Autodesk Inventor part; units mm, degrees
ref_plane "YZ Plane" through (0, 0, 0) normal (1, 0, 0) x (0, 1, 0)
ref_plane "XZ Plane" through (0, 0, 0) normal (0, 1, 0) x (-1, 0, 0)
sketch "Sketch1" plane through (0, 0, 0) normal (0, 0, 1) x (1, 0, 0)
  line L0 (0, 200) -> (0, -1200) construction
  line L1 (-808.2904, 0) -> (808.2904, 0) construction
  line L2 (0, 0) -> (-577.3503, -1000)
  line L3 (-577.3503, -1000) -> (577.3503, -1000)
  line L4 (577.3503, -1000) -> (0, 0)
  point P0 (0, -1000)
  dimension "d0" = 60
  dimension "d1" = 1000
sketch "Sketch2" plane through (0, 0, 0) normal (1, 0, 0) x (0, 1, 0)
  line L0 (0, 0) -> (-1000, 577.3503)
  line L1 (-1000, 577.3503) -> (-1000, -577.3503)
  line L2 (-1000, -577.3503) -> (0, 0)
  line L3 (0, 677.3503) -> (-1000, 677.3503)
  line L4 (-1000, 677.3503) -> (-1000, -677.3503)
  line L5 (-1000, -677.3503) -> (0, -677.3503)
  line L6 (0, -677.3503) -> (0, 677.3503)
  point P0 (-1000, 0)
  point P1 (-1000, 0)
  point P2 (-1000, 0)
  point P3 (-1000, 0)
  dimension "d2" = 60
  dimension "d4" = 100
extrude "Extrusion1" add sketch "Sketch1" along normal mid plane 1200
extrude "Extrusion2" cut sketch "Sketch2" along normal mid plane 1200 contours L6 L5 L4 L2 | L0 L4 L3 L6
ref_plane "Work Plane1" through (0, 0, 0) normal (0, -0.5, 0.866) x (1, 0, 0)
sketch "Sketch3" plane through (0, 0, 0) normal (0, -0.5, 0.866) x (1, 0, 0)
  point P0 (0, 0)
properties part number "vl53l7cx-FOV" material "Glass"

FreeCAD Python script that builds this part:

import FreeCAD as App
import Part
import Sketcher

V = App.Vector
Q = App.Units.Quantity

doc = App.newDocument("Part")
params = doc.addObject("Spreadsheet::Sheet", "Params")
for row, (alias, value) in enumerate([
    ("pad1_length", "1200 mm"),
    ("sketch2_height", "100 mm"),
    ("sketch2_width", "1000 mm"),
    ("pocket1_length", "1200 mm"),
], start=1):
    params.set(f"A{row}", alias)
    params.set(f"B{row}", "=" + value)
    params.setAlias(f"B{row}", alias)

body = doc.addObject("PartDesign::Body", "Body")

# Sketch on XY plane
sketch1 = body.newObject("Sketcher::SketchObject", "Sketch")
sketch1.AttachmentSupport = (doc.getObject("XY_Plane"), [""])
sketch1.MapMode = "FlatFace"
sketch1.addGeometry(Part.LineSegment(V(577, -1000, 0), V(0, 0, 0)), False)
sketch1.addGeometry(Part.LineSegment(V(0, 0, 0), V(-577, -1000, 0)), False)
sketch1.addGeometry(Part.LineSegment(V(-577, -1000, 0), V(577, -1000, 0)), False)
sketch1.addConstraint(Sketcher.Constraint("Coincident", 0, 2, 1, 1))
sketch1.addConstraint(Sketcher.Constraint("Coincident", 1, 2, 2, 1))
sketch1.addConstraint(Sketcher.Constraint("Coincident", 2, 2, 0, 1))
sketch1.addConstraint(Sketcher.Constraint("Horizontal", 2))
sketch1.addConstraint(Sketcher.Constraint("Coincident", 0, 2, -1, 1))
sketch1.addConstraint(Sketcher.Constraint("Equal", 0, 1))
sketch1.addConstraint(Sketcher.Constraint("DistanceY", 1, 2, -1, 1, Q("1000 mm")))
sketch1.addConstraint(Sketcher.Constraint("Angle", 0, Q("120 deg")))
pad1 = body.newObject("PartDesign::Pad", "Pad")
pad1.Profile = sketch1
pad1.setExpression("Length", "Params.pad1_length")
pad1.Midplane = True

# Sketch on YZ plane
sketch2 = body.newObject("Sketcher::SketchObject", "Sketch001")
sketch2.AttachmentSupport = (doc.getObject("YZ_Plane"), [""])
sketch2.MapMode = "FlatFace"
sketch2.addGeometry(Part.LineSegment(V(0, -677, 0), V(0, 0, 0)), False)
sketch2.addGeometry(Part.LineSegment(V(0, 0, 0), V(-1000, -577, 0)), False)
sketch2.addGeometry(Part.LineSegment(V(-1000, -577, 0), V(-1000, -677, 0)), False)
sketch2.addGeometry(Part.LineSegment(V(-1000, -677, 0), V(0, -677, 0)), False)
sketch2.addGeometry(Part.LineSegment(V(-1000, 577, 0), V(0, 0, 0)), False)
sketch2.addGeometry(Part.LineSegment(V(0, 0, 0), V(0, 677, 0)), False)
sketch2.addGeometry(Part.LineSegment(V(0, 677, 0), V(-1000, 677, 0)), False)
sketch2.addGeometry(Part.LineSegment(V(-1000, 677, 0), V(-1000, 577, 0)), False)
sketch2.addConstraint(Sketcher.Constraint("Coincident", 0, 2, 1, 1))
sketch2.addConstraint(Sketcher.Constraint("Coincident", 1, 2, 2, 1))
sketch2.addConstraint(Sketcher.Constraint("Coincident", 2, 2, 3, 1))
sketch2.addConstraint(Sketcher.Constraint("Coincident", 3, 2, 0, 1))
sketch2.addConstraint(Sketcher.Constraint("Coincident", 4, 2, 5, 1))
sketch2.addConstraint(Sketcher.Constraint("Coincident", 5, 2, 6, 1))
sketch2.addConstraint(Sketcher.Constraint("Coincident", 6, 2, 7, 1))
sketch2.addConstraint(Sketcher.Constraint("Coincident", 7, 2, 4, 1))
sketch2.addConstraint(Sketcher.Constraint("Vertical", 0))
sketch2.addConstraint(Sketcher.Constraint("Vertical", 2))
sketch2.addConstraint(Sketcher.Constraint("Horizontal", 3))
sketch2.addConstraint(Sketcher.Constraint("Vertical", 5))
sketch2.addConstraint(Sketcher.Constraint("Horizontal", 6))
sketch2.addConstraint(Sketcher.Constraint("Vertical", 7))
sketch2.addConstraint(Sketcher.Constraint("Coincident", 0, 2, -1, 1))
sketch2.addConstraint(Sketcher.Constraint("Coincident", 4, 2, -1, 1))
sketch2.addConstraint(Sketcher.Constraint("Symmetric", 2, 2, 6, 2, -1))
sketch2.addConstraint(Sketcher.Constraint("Equal", 2, 7))
sketch2.addConstraint(Sketcher.Constraint("DistanceY", 2, 2, 2, 1, Q("100 mm")))
sketch2.addConstraint(Sketcher.Constraint("DistanceX", 3, 1, 3, 2, Q("1000 mm")))
sketch2.addConstraint(Sketcher.Constraint("Angle", 1, Q("-150 deg")))
sketch2.setExpression("Constraints[18]", "Params.sketch2_height")
sketch2.setExpression("Constraints[19]", "Params.sketch2_width")
pocket1 = body.newObject("PartDesign::Pocket", "Pocket")
pocket1.Profile = sketch2
pocket1.setExpression("Length", "Params.pocket1_length")
pocket1.Midplane = True

doc.recompute()
